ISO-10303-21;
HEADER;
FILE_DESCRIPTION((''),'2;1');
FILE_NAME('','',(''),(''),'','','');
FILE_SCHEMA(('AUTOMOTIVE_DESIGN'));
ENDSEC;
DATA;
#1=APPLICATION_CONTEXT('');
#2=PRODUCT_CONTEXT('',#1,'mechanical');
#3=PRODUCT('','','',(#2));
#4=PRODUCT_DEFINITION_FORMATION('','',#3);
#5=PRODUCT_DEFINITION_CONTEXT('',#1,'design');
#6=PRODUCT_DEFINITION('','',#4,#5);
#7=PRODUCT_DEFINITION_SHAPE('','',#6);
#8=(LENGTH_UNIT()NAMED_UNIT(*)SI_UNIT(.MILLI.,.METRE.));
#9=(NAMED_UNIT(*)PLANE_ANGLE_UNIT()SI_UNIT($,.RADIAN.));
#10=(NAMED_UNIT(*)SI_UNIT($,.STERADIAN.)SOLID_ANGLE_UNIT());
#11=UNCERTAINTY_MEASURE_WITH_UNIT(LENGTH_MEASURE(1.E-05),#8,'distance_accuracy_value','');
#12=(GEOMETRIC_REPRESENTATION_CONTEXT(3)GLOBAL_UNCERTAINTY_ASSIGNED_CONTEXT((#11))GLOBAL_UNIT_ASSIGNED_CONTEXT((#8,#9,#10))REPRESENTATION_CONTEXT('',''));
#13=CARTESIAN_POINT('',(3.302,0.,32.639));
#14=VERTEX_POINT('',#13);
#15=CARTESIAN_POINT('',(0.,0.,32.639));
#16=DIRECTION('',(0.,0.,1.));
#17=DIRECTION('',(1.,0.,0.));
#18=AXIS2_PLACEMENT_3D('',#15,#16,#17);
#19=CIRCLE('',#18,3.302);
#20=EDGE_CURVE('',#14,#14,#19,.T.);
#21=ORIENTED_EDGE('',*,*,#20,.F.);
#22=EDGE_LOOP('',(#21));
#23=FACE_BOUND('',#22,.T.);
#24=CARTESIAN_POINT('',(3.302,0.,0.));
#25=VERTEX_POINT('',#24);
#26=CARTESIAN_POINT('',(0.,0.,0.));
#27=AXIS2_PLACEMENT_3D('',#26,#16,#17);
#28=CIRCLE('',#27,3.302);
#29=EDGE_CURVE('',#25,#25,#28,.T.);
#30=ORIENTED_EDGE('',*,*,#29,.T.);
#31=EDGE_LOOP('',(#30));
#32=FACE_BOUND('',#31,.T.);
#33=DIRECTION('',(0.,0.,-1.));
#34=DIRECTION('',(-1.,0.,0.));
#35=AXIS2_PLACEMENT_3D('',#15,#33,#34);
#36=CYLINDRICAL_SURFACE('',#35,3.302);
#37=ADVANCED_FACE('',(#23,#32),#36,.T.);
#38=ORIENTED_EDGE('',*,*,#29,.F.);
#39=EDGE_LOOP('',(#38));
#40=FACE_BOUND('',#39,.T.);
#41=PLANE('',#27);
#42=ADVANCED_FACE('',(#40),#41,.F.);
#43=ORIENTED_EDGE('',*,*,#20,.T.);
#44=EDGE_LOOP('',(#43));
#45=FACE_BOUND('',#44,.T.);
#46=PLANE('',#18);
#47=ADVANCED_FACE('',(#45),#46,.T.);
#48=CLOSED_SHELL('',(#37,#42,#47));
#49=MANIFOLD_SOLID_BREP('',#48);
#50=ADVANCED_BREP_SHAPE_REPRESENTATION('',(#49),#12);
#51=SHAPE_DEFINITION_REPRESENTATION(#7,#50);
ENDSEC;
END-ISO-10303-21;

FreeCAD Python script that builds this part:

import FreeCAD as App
import Part
import Sketcher

V = App.Vector
Q = App.Units.Quantity

doc = App.newDocument("Part")
body = doc.addObject("PartDesign::Body", "Body")

sketch1 = doc.addObject("Sketcher::SketchObject", "Sketch")
body.addObject(sketch1)
sketch1.AttachmentSupport = (doc.XY_Plane, [""])
sketch1.MapMode = "FlatFace"
sketch1.addGeometry(Part.Circle(V(0, 0, 0), V(0, 0, 1), 3.3), False)
sketch1.addConstraint(Sketcher.Constraint("Coincident", 0, 3, -1, 1))
sketch1.addConstraint(Sketcher.Constraint("Diameter", 0, Q("0.26 in")))
pad1 = doc.addObject("PartDesign::Pad", "Pad")
body.addObject(pad1)
pad1.Profile = sketch1
pad1.Length = Q("1.285 in")

doc.recompute()
